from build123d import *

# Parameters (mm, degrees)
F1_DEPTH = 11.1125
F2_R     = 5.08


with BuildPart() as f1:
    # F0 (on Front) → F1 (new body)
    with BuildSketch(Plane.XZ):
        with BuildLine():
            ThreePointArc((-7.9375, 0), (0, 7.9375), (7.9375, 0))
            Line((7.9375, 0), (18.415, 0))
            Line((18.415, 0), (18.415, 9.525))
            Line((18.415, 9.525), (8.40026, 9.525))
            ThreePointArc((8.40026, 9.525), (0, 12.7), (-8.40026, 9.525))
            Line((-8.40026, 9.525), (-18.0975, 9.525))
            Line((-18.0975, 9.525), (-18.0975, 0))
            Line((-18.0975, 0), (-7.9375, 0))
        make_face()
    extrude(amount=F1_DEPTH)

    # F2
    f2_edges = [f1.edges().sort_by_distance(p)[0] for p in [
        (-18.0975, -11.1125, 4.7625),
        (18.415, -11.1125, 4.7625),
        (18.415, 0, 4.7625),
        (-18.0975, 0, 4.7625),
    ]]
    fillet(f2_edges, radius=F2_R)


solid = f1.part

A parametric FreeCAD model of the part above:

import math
import FreeCAD as App
import Part
import Sketcher
Q = App.Units.Quantity


def edges_at(feature, points):
    """Names of the edges that pass closest to the given points."""
    edges = feature.Shape.Edges
    near = lambda p: min(range(len(edges)), key=lambda i: edges[i].distToShape(Part.Vertex(*p))[0])
    return sorted({f"Edge{near(p) + 1}" for p in points})

doc = App.newDocument("Part")
body = doc.addObject("PartDesign::Body", "Body")

# Sketch on XZ plane
sketch1 = body.newObject("Sketcher::SketchObject", "Sketch")
sketch1.AttachmentSupport = (doc.getObject("XZ_Plane"), [""])
sketch1.MapMode = "FlatFace"
sketch1.addGeometry(Part.ArcOfCircle(Part.Circle(App.Vector(0, 0, 0), App.Vector(0, 0, 1), 8), math.radians(0), math.radians(180)), False)
sketch1.addGeometry(Part.LineSegment(App.Vector(8, 0, 0), App.Vector(18, 0, 0)), False)
sketch1.addGeometry(Part.LineSegment(App.Vector(18, 0, 0), App.Vector(18, 10, 0)), False)
sketch1.addGeometry(Part.LineSegment(App.Vector(18, 10, 0), App.Vector(8, 10, 0)), False)
sketch1.addGeometry(Part.ArcOfCircle(Part.Circle(App.Vector(0, 0, 0), App.Vector(0, 0, 1), 13), math.radians(49), math.radians(131)), False)
sketch1.addGeometry(Part.LineSegment(App.Vector(-8, 10, 0), App.Vector(-18, 10, 0)), False)
sketch1.addGeometry(Part.LineSegment(App.Vector(-18, 10, 0), App.Vector(-18, 0, 0)), False)
sketch1.addGeometry(Part.LineSegment(App.Vector(-18, 0, 0), App.Vector(-8, 0, 0)), False)
sketch1.addConstraint(Sketcher.Constraint("Coincident", 0, 1, 1, 1))
sketch1.addConstraint(Sketcher.Constraint("Coincident", 1, 2, 2, 1))
sketch1.addConstraint(Sketcher.Constraint("Coincident", 2, 2, 3, 1))
sketch1.addConstraint(Sketcher.Constraint("Coincident", 3, 2, 4, 1))
sketch1.addConstraint(Sketcher.Constraint("Coincident", 4, 2, 5, 1))
sketch1.addConstraint(Sketcher.Constraint("Coincident", 5, 2, 6, 1))
sketch1.addConstraint(Sketcher.Constraint("Coincident", 6, 2, 7, 1))
sketch1.addConstraint(Sketcher.Constraint("Coincident", 7, 2, 0, 2))
sketch1.addConstraint(Sketcher.Constraint("Horizontal", 1))
sketch1.addConstraint(Sketcher.Constraint("Vertical", 2))
sketch1.addConstraint(Sketcher.Constraint("Horizontal", 3))
sketch1.addConstraint(Sketcher.Constraint("Horizontal", 5))
sketch1.addConstraint(Sketcher.Constraint("Vertical", 6))
sketch1.addConstraint(Sketcher.Constraint("Horizontal", 7))
sketch1.addConstraint(Sketcher.Constraint("Coincident", 0, 3, -1, 1))
sketch1.addConstraint(Sketcher.Constraint("Coincident", 4, 3, -1, 1))
sketch1.addConstraint(Sketcher.Constraint("PointOnObject", 0, 1, -1))
sketch1.addConstraint(Sketcher.Constraint("PointOnObject", 6, 2, -1))
sketch1.addConstraint(Sketcher.Constraint("Horizontal", 3, 2, 4, 2))
sketch1.addConstraint(Sketcher.Constraint("Radius", 4, Q("0.5 in")))
sketch1.addConstraint(Sketcher.Constraint("DistanceX", 7, 1, 7, 2, Q("0.4 in")))
sketch1.addConstraint(Sketcher.Constraint("Radius", 0, Q("0.3125 in")))
sketch1.addConstraint(Sketcher.Constraint("DistanceY", 2, 1, 2, 2, Q("0.375 in")))
sketch1.addConstraint(Sketcher.Constraint("DistanceX", 1, 1, 1, 2, Q("0.4125 in")))
pad1 = body.newObject("PartDesign::Pad", "Pad")
pad1.Profile = sketch1
pad1.Length = Q("0.4375 in")
doc.recompute()

fillet = body.newObject("PartDesign::Fillet", "Fillet")
fillet.Base = (pad1, edges_at(pad1, [
    (-18.098, -11.113, 4.763),
    (18.415, -11.113, 4.763),
    (18.415, 0, 4.763),
    (-18.098, 0, 4.763),
]))
fillet.Radius = Q("0.2 in")

doc.recompute()
